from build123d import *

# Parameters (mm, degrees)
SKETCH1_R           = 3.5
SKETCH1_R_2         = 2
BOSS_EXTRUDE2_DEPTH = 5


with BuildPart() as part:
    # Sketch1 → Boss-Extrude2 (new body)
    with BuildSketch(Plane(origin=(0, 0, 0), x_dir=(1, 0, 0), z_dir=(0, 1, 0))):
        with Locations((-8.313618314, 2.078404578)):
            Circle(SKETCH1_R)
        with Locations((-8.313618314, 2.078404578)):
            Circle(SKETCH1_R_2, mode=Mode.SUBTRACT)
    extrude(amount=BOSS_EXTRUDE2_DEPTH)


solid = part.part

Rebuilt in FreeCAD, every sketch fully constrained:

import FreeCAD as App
import Part
import Sketcher

doc = App.newDocument("Part")
body = doc.addObject("PartDesign::Body", "Body")

sketch1 = doc.addObject("Sketcher::SketchObject", "Sketch")
body.addObject(sketch1)
sketch1.AttachmentSupport = (doc.XZ_Plane, [""])
sketch1.MapMode = "FlatFace"
sketch1.addGeometry(Part.Circle(App.Vector(-8.3, -2.1, 0), App.Vector(0, 0, 1), 3.5), False)
sketch1.addGeometry(Part.Circle(App.Vector(-8.3, -2.1, 0), App.Vector(0, 0, 1), 2), False)
sketch1.addConstraint(Sketcher.Constraint("Coincident", 1, 3, 0, 3))
sketch1.addConstraint(Sketcher.Constraint("Diameter", 0, 7.0))
sketch1.addConstraint(Sketcher.Constraint("Diameter", 1, 4.0))
sketch1.addConstraint(Sketcher.Constraint("DistanceX", 0, 3, -1, 1, 8.313618))
sketch1.addConstraint(Sketcher.Constraint("DistanceY", 0, 3, -1, 1, 2.078405))
pad1 = doc.addObject("PartDesign::Pad", "Pad")
body.addObject(pad1)
pad1.Profile = sketch1
pad1.Length = 5
pad1.Reversed = True

doc.recompute()
